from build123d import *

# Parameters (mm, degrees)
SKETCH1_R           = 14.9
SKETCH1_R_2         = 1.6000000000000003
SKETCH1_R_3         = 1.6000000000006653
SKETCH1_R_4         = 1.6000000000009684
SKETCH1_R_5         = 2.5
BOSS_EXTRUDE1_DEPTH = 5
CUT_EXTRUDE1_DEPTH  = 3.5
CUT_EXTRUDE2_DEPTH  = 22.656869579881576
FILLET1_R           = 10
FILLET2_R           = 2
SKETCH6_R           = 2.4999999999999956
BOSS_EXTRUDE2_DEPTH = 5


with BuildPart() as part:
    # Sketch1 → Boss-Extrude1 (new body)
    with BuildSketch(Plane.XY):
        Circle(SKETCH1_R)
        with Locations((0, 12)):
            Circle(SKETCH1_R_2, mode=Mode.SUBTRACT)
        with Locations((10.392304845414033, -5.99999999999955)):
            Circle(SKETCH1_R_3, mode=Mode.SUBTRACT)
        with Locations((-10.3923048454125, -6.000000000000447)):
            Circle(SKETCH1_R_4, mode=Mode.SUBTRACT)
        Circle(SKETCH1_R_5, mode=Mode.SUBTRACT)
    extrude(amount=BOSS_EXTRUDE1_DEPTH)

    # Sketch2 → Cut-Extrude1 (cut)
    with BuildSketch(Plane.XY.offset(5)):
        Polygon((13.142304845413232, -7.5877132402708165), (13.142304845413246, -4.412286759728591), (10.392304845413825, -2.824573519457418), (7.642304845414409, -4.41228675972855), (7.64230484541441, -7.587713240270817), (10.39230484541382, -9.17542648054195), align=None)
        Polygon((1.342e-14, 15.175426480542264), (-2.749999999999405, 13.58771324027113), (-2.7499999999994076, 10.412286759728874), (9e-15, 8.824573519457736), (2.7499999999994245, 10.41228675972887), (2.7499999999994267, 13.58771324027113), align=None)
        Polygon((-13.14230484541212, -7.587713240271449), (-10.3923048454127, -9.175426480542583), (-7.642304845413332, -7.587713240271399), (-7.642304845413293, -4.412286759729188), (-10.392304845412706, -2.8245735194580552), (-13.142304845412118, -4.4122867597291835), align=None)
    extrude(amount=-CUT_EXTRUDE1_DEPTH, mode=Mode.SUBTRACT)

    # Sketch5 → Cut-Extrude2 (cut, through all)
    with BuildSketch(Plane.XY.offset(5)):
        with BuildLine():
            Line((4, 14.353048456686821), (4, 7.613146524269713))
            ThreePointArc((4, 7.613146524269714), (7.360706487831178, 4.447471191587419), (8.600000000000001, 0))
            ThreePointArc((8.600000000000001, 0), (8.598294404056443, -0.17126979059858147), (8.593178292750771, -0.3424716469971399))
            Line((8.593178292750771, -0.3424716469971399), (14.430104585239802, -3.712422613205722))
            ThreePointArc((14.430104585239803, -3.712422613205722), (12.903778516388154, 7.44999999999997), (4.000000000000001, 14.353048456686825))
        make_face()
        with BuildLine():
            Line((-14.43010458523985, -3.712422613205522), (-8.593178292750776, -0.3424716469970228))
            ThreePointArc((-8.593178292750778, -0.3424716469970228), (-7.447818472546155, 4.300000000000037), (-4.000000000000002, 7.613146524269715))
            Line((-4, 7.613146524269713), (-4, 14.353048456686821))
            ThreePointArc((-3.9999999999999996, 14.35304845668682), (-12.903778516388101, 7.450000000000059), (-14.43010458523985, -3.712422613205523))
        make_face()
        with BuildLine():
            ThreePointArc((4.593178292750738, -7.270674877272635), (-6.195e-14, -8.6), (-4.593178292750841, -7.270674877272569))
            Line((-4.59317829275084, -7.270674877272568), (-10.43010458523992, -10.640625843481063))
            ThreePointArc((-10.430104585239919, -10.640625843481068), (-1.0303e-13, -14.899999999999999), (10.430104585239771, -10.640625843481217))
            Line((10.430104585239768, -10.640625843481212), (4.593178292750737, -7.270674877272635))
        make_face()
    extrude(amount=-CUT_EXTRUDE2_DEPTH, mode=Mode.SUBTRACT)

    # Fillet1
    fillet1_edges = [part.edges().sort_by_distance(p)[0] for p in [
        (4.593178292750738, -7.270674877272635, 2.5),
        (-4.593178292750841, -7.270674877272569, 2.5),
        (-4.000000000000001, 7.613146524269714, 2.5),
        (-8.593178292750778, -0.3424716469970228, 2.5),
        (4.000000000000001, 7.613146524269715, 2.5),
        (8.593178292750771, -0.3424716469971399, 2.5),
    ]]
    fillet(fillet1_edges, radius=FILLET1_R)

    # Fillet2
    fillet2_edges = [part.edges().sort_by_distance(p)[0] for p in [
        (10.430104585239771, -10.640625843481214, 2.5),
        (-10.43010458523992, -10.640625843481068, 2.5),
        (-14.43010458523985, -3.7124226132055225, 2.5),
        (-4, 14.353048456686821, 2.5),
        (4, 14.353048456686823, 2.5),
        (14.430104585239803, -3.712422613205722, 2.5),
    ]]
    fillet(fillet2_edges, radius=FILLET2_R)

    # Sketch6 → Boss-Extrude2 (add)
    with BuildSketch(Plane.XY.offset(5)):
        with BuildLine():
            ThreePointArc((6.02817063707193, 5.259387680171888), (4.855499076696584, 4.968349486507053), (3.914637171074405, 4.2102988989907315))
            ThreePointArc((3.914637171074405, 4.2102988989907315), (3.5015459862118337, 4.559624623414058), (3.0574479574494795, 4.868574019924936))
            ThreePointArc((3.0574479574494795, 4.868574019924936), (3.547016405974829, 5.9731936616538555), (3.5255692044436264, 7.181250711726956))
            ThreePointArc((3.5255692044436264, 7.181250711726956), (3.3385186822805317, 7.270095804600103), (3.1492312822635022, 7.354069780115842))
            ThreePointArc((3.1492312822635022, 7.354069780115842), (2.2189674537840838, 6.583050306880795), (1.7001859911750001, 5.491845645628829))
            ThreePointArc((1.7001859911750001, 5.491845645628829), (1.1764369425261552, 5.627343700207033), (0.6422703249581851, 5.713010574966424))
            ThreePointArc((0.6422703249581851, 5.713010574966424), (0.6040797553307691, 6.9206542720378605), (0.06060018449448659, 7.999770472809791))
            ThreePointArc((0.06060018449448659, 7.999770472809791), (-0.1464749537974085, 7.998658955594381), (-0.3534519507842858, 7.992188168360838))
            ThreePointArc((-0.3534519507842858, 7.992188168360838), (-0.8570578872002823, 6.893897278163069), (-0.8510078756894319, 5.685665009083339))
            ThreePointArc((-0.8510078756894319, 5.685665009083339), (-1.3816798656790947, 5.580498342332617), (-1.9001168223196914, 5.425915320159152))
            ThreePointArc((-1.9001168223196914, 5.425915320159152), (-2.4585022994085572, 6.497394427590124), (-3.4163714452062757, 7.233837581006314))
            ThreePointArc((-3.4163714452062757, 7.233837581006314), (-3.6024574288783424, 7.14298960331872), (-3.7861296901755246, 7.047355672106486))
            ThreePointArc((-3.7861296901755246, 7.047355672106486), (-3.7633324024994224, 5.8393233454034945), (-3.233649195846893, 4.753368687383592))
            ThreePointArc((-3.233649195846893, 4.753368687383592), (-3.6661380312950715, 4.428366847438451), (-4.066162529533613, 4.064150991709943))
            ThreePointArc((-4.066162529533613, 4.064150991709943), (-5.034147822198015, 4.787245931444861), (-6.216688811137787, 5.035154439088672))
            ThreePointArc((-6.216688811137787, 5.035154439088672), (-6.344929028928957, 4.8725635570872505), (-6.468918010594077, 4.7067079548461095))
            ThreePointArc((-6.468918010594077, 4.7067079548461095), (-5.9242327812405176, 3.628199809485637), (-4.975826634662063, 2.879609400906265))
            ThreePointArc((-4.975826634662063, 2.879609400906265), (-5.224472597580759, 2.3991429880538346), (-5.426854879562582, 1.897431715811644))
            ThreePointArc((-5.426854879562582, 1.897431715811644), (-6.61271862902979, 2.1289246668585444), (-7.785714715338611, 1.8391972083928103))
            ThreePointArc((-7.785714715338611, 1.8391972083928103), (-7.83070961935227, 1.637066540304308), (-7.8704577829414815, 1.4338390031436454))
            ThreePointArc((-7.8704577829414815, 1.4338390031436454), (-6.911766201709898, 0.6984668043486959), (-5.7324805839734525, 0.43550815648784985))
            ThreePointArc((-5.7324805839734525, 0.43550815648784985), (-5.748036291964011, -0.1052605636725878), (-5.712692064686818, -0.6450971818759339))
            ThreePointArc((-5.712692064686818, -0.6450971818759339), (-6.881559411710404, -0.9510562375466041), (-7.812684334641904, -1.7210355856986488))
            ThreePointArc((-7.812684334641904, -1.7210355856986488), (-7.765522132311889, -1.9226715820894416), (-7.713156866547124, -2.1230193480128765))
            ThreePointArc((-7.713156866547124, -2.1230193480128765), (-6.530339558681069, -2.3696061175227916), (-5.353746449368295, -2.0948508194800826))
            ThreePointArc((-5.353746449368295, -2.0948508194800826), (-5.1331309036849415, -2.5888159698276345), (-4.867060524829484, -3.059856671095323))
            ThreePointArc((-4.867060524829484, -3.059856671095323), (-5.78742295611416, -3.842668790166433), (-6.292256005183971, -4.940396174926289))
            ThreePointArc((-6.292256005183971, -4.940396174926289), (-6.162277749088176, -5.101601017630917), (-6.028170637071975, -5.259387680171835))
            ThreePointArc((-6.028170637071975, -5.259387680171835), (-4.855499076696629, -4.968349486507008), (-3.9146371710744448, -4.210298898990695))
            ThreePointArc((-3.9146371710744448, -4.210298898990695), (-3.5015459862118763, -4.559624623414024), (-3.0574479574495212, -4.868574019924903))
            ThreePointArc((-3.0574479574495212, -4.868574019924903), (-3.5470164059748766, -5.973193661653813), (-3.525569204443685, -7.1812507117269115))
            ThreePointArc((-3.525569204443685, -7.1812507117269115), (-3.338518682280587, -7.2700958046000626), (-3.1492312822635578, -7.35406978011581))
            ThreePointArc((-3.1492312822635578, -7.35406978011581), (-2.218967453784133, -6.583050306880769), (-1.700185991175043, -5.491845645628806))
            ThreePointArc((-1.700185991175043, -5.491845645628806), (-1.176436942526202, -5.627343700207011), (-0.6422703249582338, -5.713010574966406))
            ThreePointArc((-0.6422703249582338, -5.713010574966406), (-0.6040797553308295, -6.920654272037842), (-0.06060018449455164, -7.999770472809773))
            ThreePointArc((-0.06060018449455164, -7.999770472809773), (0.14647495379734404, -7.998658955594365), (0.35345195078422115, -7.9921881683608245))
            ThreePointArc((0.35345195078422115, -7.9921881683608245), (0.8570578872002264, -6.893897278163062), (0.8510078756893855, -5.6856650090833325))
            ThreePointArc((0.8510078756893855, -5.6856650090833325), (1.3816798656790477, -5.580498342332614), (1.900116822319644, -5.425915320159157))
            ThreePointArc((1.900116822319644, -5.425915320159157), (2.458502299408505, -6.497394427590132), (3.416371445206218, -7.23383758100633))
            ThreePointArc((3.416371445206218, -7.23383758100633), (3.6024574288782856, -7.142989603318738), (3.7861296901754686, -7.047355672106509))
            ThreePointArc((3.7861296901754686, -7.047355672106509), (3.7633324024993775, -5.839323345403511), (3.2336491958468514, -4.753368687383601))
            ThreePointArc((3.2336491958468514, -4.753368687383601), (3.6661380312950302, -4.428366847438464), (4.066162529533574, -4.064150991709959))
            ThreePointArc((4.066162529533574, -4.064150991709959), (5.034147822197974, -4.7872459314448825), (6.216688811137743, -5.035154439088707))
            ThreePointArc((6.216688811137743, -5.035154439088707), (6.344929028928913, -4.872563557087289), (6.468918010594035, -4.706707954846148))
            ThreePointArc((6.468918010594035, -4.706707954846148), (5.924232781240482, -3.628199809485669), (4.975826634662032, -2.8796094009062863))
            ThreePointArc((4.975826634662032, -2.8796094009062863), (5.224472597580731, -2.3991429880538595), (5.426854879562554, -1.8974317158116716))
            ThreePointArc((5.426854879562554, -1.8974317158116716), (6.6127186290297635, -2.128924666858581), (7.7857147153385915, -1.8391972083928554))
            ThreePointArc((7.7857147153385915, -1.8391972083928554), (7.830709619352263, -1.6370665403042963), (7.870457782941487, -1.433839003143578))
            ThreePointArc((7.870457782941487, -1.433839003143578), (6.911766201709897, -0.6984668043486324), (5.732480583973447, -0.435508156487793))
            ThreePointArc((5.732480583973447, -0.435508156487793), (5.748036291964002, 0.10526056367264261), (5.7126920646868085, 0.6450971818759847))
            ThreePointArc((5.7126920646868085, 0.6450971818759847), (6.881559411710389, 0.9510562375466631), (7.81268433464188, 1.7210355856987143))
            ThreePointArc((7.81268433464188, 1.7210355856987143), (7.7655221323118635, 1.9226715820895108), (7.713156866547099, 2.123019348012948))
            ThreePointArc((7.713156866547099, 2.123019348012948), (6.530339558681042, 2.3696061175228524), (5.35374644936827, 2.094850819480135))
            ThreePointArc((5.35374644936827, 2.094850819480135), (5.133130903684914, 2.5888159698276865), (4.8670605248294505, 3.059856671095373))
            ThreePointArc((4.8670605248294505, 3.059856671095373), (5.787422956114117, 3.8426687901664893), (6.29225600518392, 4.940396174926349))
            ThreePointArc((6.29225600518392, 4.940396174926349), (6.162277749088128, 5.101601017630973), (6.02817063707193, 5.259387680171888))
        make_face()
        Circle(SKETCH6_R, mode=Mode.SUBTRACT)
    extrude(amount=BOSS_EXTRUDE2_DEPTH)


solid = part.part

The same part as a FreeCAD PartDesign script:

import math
import FreeCAD as App
import Part
import Sketcher

V = App.Vector
Q = App.Units.Quantity


def edges_at(feature, points):
    """Names of the edges that pass closest to the given points."""
    edges = feature.Shape.Edges
    near = lambda p: min(range(len(edges)), key=lambda i: edges[i].distToShape(Part.Vertex(*p))[0])
    return sorted({f"Edge{near(p) + 1}" for p in points})

doc = App.newDocument("Part")
body = doc.addObject("PartDesign::Body", "Body")

# Sketch on XY plane
sketch1 = body.newObject("Sketcher::SketchObject", "Sketch")
sketch1.AttachmentSupport = (doc.getObject("XY_Plane"), [""])
sketch1.MapMode = "FlatFace"
sketch1.addGeometry(Part.Circle(V(0, 0, 0), V(0, 0, 1), 14.9), False)
sketch1.addGeometry(Part.Circle(V(-10.4, -6, 0), V(0, 0, 1), 1.6), False)
sketch1.addGeometry(Part.Circle(V(0, 0, 0), V(0, 0, 1), 2.5), False)
sketch1.addGeometry(Part.Circle(V(10.4, -6, 0), V(0, 0, 1), 1.6), False)
sketch1.addGeometry(Part.Circle(V(0, 12, 0), V(0, 0, 1), 1.6), False)
sketch1.addConstraint(Sketcher.Constraint("Coincident", 0, 3, -1, 1))
sketch1.addConstraint(Sketcher.Constraint("Coincident", 2, 3, -1, 1))
sketch1.addConstraint(Sketcher.Constraint("Equal", 1, 3))
sketch1.addConstraint(Sketcher.Constraint("Equal", 3, 4))
sketch1.addConstraint(Sketcher.Constraint("Symmetric", 1, 3, 3, 3, -2))
sketch1.addConstraint(Sketcher.Constraint("PointOnObject", 4, 3, -2))
sketch1.addConstraint(Sketcher.Constraint("Diameter", 2, Q("5 mm")))
sketch1.addConstraint(Sketcher.Constraint("Diameter", 0, Q("29.8 mm")))
sketch1.addConstraint(Sketcher.Constraint("Diameter", 1, Q("3.2 mm")))
sketch1.addConstraint(Sketcher.Constraint("DistanceY", 1, 3, -1, 1, Q("6 mm")))
sketch1.addConstraint(Sketcher.Constraint("DistanceY", -1, 1, 4, 3, Q("12 mm")))
sketch1.addConstraint(Sketcher.Constraint("DistanceX", 1, 3, 3, 3, Q("20.78461 mm")))
pad1 = body.newObject("PartDesign::Pad", "Pad")
pad1.Profile = sketch1
pad1.Length = 5

# Sketch on XY plane
sketch2 = body.newObject("Sketcher::SketchObject", "Sketch001")
sketch2.AttachmentSupport = (doc.getObject("XY_Plane"), [""])
sketch2.MapMode = "FlatFace"
sketch2.AttachmentOffset = App.Placement(V(0, 0, 5), App.Rotation())
sketch2.addGeometry(Part.LineSegment(V(13.1, -7.6, 0), V(13.1, -4.4, 0)), False)
sketch2.addGeometry(Part.LineSegment(V(13.1, -4.4, 0), V(10.4, -2.8, 0)), False)
sketch2.addGeometry(Part.LineSegment(V(10.4, -2.8, 0), V(7.6, -4.4, 0)), False)
sketch2.addGeometry(Part.LineSegment(V(7.6, -4.4, 0), V(7.6, -7.6, 0)), False)
sketch2.addGeometry(Part.LineSegment(V(7.6, -7.6, 0), V(10.4, -9.2, 0)), False)
sketch2.addGeometry(Part.LineSegment(V(10.4, -9.2, 0), V(13.1, -7.6, 0)), False)
sketch2.addGeometry(Part.LineSegment(V(0, 15.2, 0), V(-2.8, 13.6, 0)), False)
sketch2.addGeometry(Part.LineSegment(V(-2.8, 13.6, 0), V(-2.8, 10.4, 0)), False)
sketch2.addGeometry(Part.LineSegment(V(-2.8, 10.4, 0), V(0, 8.8, 0)), False)
sketch2.addGeometry(Part.LineSegment(V(0, 8.8, 0), V(2.8, 10.4, 0)), False)
sketch2.addGeometry(Part.LineSegment(V(2.8, 10.4, 0), V(2.8, 13.6, 0)), False)
sketch2.addGeometry(Part.LineSegment(V(2.8, 13.6, 0), V(0, 15.2, 0)), False)
sketch2.addGeometry(Part.LineSegment(V(-13.1, -7.6, 0), V(-10.4, -9.2, 0)), False)
sketch2.addGeometry(Part.LineSegment(V(-10.4, -9.2, 0), V(-7.6, -7.6, 0)), False)
sketch2.addGeometry(Part.LineSegment(V(-7.6, -7.6, 0), V(-7.6, -4.4, 0)), False)
sketch2.addGeometry(Part.LineSegment(V(-7.6, -4.4, 0), V(-10.4, -2.8, 0)), False)
sketch2.addGeometry(Part.LineSegment(V(-10.4, -2.8, 0), V(-13.1, -4.4, 0)), False)
sketch2.addGeometry(Part.LineSegment(V(-13.1, -4.4, 0), V(-13.1, -7.6, 0)), False)
sketch2.addConstraint(Sketcher.Constraint("Coincident", 0, 2, 1, 1))
sketch2.addConstraint(Sketcher.Constraint("Coincident", 1, 2, 2, 1))
sketch2.addConstraint(Sketcher.Constraint("Coincident", 2, 2, 3, 1))
sketch2.addConstraint(Sketcher.Constraint("Coincident", 3, 2, 4, 1))
sketch2.addConstraint(Sketcher.Constraint("Coincident", 4, 2, 5, 1))
sketch2.addConstraint(Sketcher.Constraint("Coincident", 5, 2, 0, 1))
sketch2.addConstraint(Sketcher.Constraint("Coincident", 6, 2, 7, 1))
sketch2.addConstraint(Sketcher.Constraint("Coincident", 7, 2, 8, 1))
sketch2.addConstraint(Sketcher.Constraint("Coincident", 8, 2, 9, 1))
sketch2.addConstraint(Sketcher.Constraint("Coincident", 9, 2, 10, 1))
sketch2.addConstraint(Sketcher.Constraint("Coincident", 10, 2, 11, 1))
sketch2.addConstraint(Sketcher.Constraint("Coincident", 11, 2, 6, 1))
sketch2.addConstraint(Sketcher.Constraint("Coincident", 12, 2, 13, 1))
sketch2.addConstraint(Sketcher.Constraint("Coincident", 13, 2, 14, 1))
sketch2.addConstraint(Sketcher.Constraint("Coincident", 14, 2, 15, 1))
sketch2.addConstraint(Sketcher.Constraint("Coincident", 15, 2, 16, 1))
sketch2.addConstraint(Sketcher.Constraint("Coincident", 16, 2, 17, 1))
sketch2.addConstraint(Sketcher.Constraint("Coincident", 17, 2, 12, 1))
sketch2.addConstraint(Sketcher.Constraint("Vertical", 0))
sketch2.addConstraint(Sketcher.Constraint("Vertical", 3))
sketch2.addConstraint(Sketcher.Constraint("Vertical", 7))
sketch2.addConstraint(Sketcher.Constraint("Vertical", 10))
sketch2.addConstraint(Sketcher.Constraint("Vertical", 14))
sketch2.addConstraint(Sketcher.Constraint("Vertical", 17))
sketch2.addConstraint(Sketcher.Constraint("Symmetric", 7, 2, 9, 2, -2))
sketch2.addConstraint(Sketcher.Constraint("Symmetric", 4, 2, 12, 2, -2))
sketch2.addConstraint(Sketcher.Constraint("Symmetric", 3, 2, 13, 2, -2))
sketch2.addConstraint(Sketcher.Constraint("Symmetric", 1, 2, 15, 2, -2))
sketch2.addConstraint(Sketcher.Constraint("Symmetric", 0, 2, 16, 2, -2))
sketch2.addConstraint(Sketcher.Constraint("PointOnObject", 8, 2, -2))
sketch2.addConstraint(Sketcher.Constraint("PointOnObject", 11, 2, -2))
sketch2.addConstraint(Sketcher.Constraint("Parallel", 1, 4))
sketch2.addConstraint(Sketcher.Constraint("Parallel", 2, 5))
sketch2.addConstraint(Sketcher.Constraint("Parallel", 5, 6))
sketch2.addConstraint(Sketcher.Constraint("Parallel", 4, 8))
sketch2.addConstraint(Sketcher.Constraint("Parallel", 6, 9))
sketch2.addConstraint(Sketcher.Constraint("Parallel", 8, 11))
sketch2.addConstraint(Sketcher.Constraint("Parallel", 11, 12))
sketch2.addConstraint(Sketcher.Constraint("Parallel", 12, 15))
sketch2.addConstraint(Sketcher.Constraint("Horizontal", 0, 2, 2, 2))
sketch2.addConstraint(Sketcher.Constraint("Horizontal", 3, 2, 5, 2))
sketch2.addConstraint(Sketcher.Constraint("Equal", 3, 7))
sketch2.addConstraint(Sketcher.Constraint("Equal", 5, 6))
sketch2.addConstraint(Sketcher.Constraint("Angle", 1, Q("150 deg")))
sketch2.addConstraint(Sketcher.Constraint("DistanceY", 2, 2, 6, 2, Q("18 mm")))
sketch2.addConstraint(Sketcher.Constraint("DistanceX", 2, 2, 0, 2, Q("5.5 mm")))
sketch2.addConstraint(Sketcher.Constraint("DistanceY", 0, 1, 0, 2, Q("3.175426 mm")))
sketch2.addConstraint(Sketcher.Constraint("DistanceX", 12, 2, 3, 2, Q("18.03461 mm")))
sketch2.addConstraint(Sketcher.Constraint("DistanceY", 0, 2, -1, 1, Q("4.412287 mm")))
pocket1 = body.newObject("PartDesign::Pocket", "Pocket")
pocket1.Profile = sketch2
pocket1.Length = 3.5

# Sketch on XY plane
sketch3 = body.newObject("Sketcher::SketchObject", "Sketch002")
sketch3.AttachmentSupport = (doc.getObject("XY_Plane"), [""])
sketch3.MapMode = "FlatFace"
sketch3.AttachmentOffset = App.Placement(V(0, 0, 5), App.Rotation())
sketch3.addGeometry(Part.LineSegment(V(4, 14, 0), V(4, 8, 0)), False)
sketch3.addGeometry(Part.ArcOfCircle(Part.Circle(V(0, 0, 0), V(0, 0, 1), 9), math.radians(-2), math.radians(62)), False)
sketch3.addGeometry(Part.LineSegment(V(9, 0, 0), V(14, -4, 0)), False)
sketch3.addGeometry(Part.ArcOfCircle(Part.Circle(V(0, 0, 0), V(0, 0, 1), 15), math.radians(-14), math.radians(74)), False)
sketch3.addGeometry(Part.LineSegment(V(-14, -4, 0), V(-9, 0, 0)), False)
sketch3.addGeometry(Part.ArcOfCircle(Part.Circle(V(0, 0, 0), V(0, 0, 1), 9), math.radians(118), math.radians(182)), False)
sketch3.addGeometry(Part.LineSegment(V(-4, 8, 0), V(-4, 14, 0)), False)
sketch3.addGeometry(Part.ArcOfCircle(Part.Circle(V(0, 0, 0), V(0, 0, 1), 15), math.radians(106), math.radians(194)), False)
sketch3.addGeometry(Part.ArcOfCircle(Part.Circle(V(0, 0, 0), V(0, 0, 1), 9), math.radians(-122), math.radians(-58)), False)
sketch3.addGeometry(Part.LineSegment(V(-5, -7, 0), V(-10, -11, 0)), False)
sketch3.addGeometry(Part.ArcOfCircle(Part.Circle(V(0, 0, 0), V(0, 0, 1), 15), math.radians(-134), math.radians(-46)), False)
sketch3.addGeometry(Part.LineSegment(V(10, -11, 0), V(5, -7, 0)), False)
sketch3.addConstraint(Sketcher.Constraint("Coincident", 0, 2, 1, 2))
sketch3.addConstraint(Sketcher.Constraint("Coincident", 1, 1, 2, 1))
sketch3.addConstraint(Sketcher.Constraint("Coincident", 2, 2, 3, 1))
sketch3.addConstraint(Sketcher.Constraint("Coincident", 3, 2, 0, 1))
sketch3.addConstraint(Sketcher.Constraint("Coincident", 4, 2, 5, 2))
sketch3.addConstraint(Sketcher.Constraint("Coincident", 5, 1, 6, 1))
sketch3.addConstraint(Sketcher.Constraint("Coincident", 6, 2, 7, 1))
sketch3.addConstraint(Sketcher.Constraint("Coincident", 7, 2, 4, 1))
sketch3.addConstraint(Sketcher.Constraint("Coincident", 8, 1, 9, 1))
sketch3.addConstraint(Sketcher.Constraint("Coincident", 9, 2, 10, 1))
sketch3.addConstraint(Sketcher.Constraint("Coincident", 10, 2, 11, 1))
sketch3.addConstraint(Sketcher.Constraint("Coincident", 11, 2, 8, 2))
sketch3.addConstraint(Sketcher.Constraint("Vertical", 0))
sketch3.addConstraint(Sketcher.Constraint("Vertical", 6))
sketch3.addConstraint(Sketcher.Constraint("Coincident", 1, 3, -1, 1))
sketch3.addConstraint(Sketcher.Constraint("Coincident", 3, 3, -1, 1))
sketch3.addConstraint(Sketcher.Constraint("Coincident", 5, 3, -1, 1))
sketch3.addConstraint(Sketcher.Constraint("Coincident", 7, 3, -1, 1))
sketch3.addConstraint(Sketcher.Constraint("Coincident", 8, 3, -1, 1))
sketch3.addConstraint(Sketcher.Constraint("Coincident", 10, 3, -1, 1))
sketch3.addConstraint(Sketcher.Constraint("Equal", 1, 5))
sketch3.addConstraint(Sketcher.Constraint("Equal", 3, 7))
sketch3.addConstraint(Sketcher.Constraint("Equal", 5, 8))
sketch3.addConstraint(Sketcher.Constraint("Equal", 7, 10))
sketch3.addConstraint(Sketcher.Constraint("Parallel", 4, 9))
sketch3.addConstraint(Sketcher.Constraint("Parallel", 2, 11))
sketch3.addConstraint(Sketcher.Constraint("Horizontal", 1, 1, 4, 2))
sketch3.addConstraint(Sketcher.Constraint("Horizontal", 0, 2, 5, 1))
sketch3.addConstraint(Sketcher.Constraint("Horizontal", 2, 2, 7, 2))
sketch3.addConstraint(Sketcher.Constraint("Horizontal", 9, 2, 10, 2))
sketch3.addConstraint(Sketcher.Constraint("Equal", 4, 9))
sketch3.addConstraint(Sketcher.Constraint("Radius", 1, Q("8.6 mm")))
sketch3.addConstraint(Sketcher.Constraint("Radius", 3, Q("14.9 mm")))
sketch3.addConstraint(Sketcher.Constraint("Angle", 2, Q("-30 deg")))
sketch3.addConstraint(Sketcher.Constraint("DistanceX", -1, 1, 0, 2, Q("4 mm")))
sketch3.addConstraint(Sketcher.Constraint("DistanceX", 4, 2, 8, 1, Q("4 mm")))
pocket2 = body.newObject("PartDesign::Pocket", "Pocket001")
pocket2.Profile = sketch3
pocket2.Type = "ThroughAll"
doc.recompute()

fillet = body.newObject("PartDesign::Fillet", "Fillet")
fillet.Base = (pocket2, edges_at(pocket2, [
    (4.593, -7.271, 2.5),
    (-4.593, -7.271, 2.5),
    (-4, 7.613, 2.5),
    (-8.593, -0.342, 2.5),
    (4, 7.613, 2.5),
    (8.593, -0.342, 2.5),
]))
fillet.Radius = 10
doc.recompute()

fillet2 = body.newObject("PartDesign::Fillet", "Fillet001")
fillet2.Base = (fillet, edges_at(fillet, [
    (10.43, -10.641, 2.5),
    (-10.43, -10.641, 2.5),
    (-14.43, -3.712, 2.5),
    (-4, 14.353, 2.5),
    (4, 14.353, 2.5),
    (14.43, -3.712, 2.5),
]))
fillet2.Radius = 2

# Sketch on XY plane
sketch4 = body.newObject("Sketcher::SketchObject", "Sketch003")
sketch4.AttachmentSupport = (doc.getObject("XY_Plane"), [""])
sketch4.MapMode = "FlatFace"
sketch4.AttachmentOffset = App.Placement(V(0, 0, 5), App.Rotation())
sketch4.addGeometry(Part.ArcOfCircle(Part.Circle(V(6.1, 2.46, 0), V(0, 0, 1), 2.8), math.radians(91), math.radians(141)), False)
sketch4.addGeometry(Part.ArcOfCircle(Part.Circle(V(0, 0, 0), V(0, 0, 1), 5.75), math.radians(47.08), math.radians(57.87)), False)
sketch4.addGeometry(Part.ArcOfCircle(Part.Circle(V(0.8, 6.53, 0), V(0, 0, 1), 2.8), math.radians(-36), math.radians(13)), False)
sketch4.addGeometry(Part.ArcOfCircle(Part.Circle(V(0, 0, 0), V(0, 0, 1), 8), math.radians(63.85), math.radians(66.82)), False)
sketch4.addGeometry(Part.ArcOfCircle(Part.Circle(V(4.43, 4.86, 0), V(0, 0, 1), 2.8), math.radians(117), math.radians(167)), False)
sketch4.addGeometry(Part.ArcOfCircle(Part.Circle(V(0, 0, 0), V(0, 0, 1), 5.75), math.radians(72.8), math.radians(83.59)), False)
sketch4.addGeometry(Part.ArcOfCircle(Part.Circle(V(-2.11, 6.23, 0), V(0, 0, 1), 2.8), math.radians(-11), math.radians(39)), False)
sketch4.addGeometry(Part.ArcOfCircle(Part.Circle(V(0, 0, 0), V(0, 0, 1), 8), math.radians(89.57), math.radians(92.53)), False)
sketch4.addGeometry(Part.ArcOfCircle(Part.Circle(V(1.88, 6.3, 0), V(0, 0, 1), 2.8), math.radians(143), math.radians(193)), False)
sketch4.addGeometry(Part.ArcOfCircle(Part.Circle(V(0, 0, 0), V(0, 0, 1), 5.75), math.radians(98.51), math.radians(109.3)), False)
sketch4.addGeometry(Part.ArcOfCircle(Part.Circle(V(-4.6, 4.7, 0), V(0, 0, 1), 2.8), math.radians(15), math.radians(65)), False)
sketch4.addGeometry(Part.ArcOfCircle(Part.Circle(V(0, 0, 0), V(0, 0, 1), 8), math.radians(115.28), math.radians(118.25)), False)
sketch4.addGeometry(Part.ArcOfCircle(Part.Circle(V(-1.04, 6.49, 0), V(0, 0, 1), 2.8), math.radians(169), math.radians(218)), False)
sketch4.addGeometry(Part.ArcOfCircle(Part.Circle(V(0, 0, 0), V(0, 0, 1), 5.75), math.radians(124.23), math.radians(135.01)), False)
sketch4.addGeometry(Part.ArcOfCircle(Part.Circle(V(-6.19, 2.24, 0), V(0, 0, 1), 2.8), math.radians(41), math.radians(91)), False)
sketch4.addGeometry(Part.ArcOfCircle(Part.Circle(V(0, 0, 0), V(0, 0, 1), 8), math.radians(140.99), math.radians(143.96)), False)
sketch4.addGeometry(Part.ArcOfCircle(Part.Circle(V(-3.76, 5.4, 0), V(0, 0, 1), 2.8), math.radians(-166), math.radians(-116)), False)
sketch4.addGeometry(Part.ArcOfCircle(Part.Circle(V(0, 0, 0), V(0, 0, 1), 5.75), math.radians(149.94), math.radians(160.73)), False)
sketch4.addGeometry(Part.ArcOfCircle(Part.Circle(V(-6.54, -0.67, 0), V(0, 0, 1), 2.8), math.radians(66), math.radians(116)), False)
sketch4.addGeometry(Part.ArcOfCircle(Part.Circle(V(0, 0, 0), V(0, 0, 1), 8), math.radians(166.71), math.radians(169.68)), False)
sketch4.addGeometry(Part.ArcOfCircle(Part.Circle(V(-5.73, 3.24, 0), V(0, 0, 1), 2.8), math.radians(-140), math.radians(-90)), False)
sketch4.addGeometry(Part.ArcOfCircle(Part.Circle(V(0, 0, 0), V(0, 0, 1), 5.75), math.radians(175.66), math.radians(186.44)), False)
sketch4.addGeometry(Part.ArcOfCircle(Part.Circle(V(-5.6, -3.44, 0), V(0, 0, 1), 2.8), math.radians(92), math.radians(142)), False)
sketch4.addGeometry(Part.ArcOfCircle(Part.Circle(V(0, 0, 0), V(0, 0, 1), 8), math.radians(-167.58), math.radians(-164.61)), False)
sketch4.addGeometry(Part.ArcOfCircle(Part.Circle(V(-6.56, 0.43, 0), V(0, 0, 1), 2.8), math.radians(-114), math.radians(-64)), False)
sketch4.addGeometry(Part.ArcOfCircle(Part.Circle(V(0, 0, 0), V(0, 0, 1), 5.75), math.radians(-158.63), math.radians(-147.84)), False)
sketch4.addGeometry(Part.ArcOfCircle(Part.Circle(V(-3.56, -5.53, 0), V(0, 0, 1), 2.8), math.radians(118), math.radians(168)), False)
sketch4.addGeometry(Part.ArcOfCircle(Part.Circle(V(0, 0, 0), V(0, 0, 1), 8), math.radians(-141.86), math.radians(-138.9)), False)
sketch4.addGeometry(Part.ArcOfCircle(Part.Circle(V(-6.1, -2.46, 0), V(0, 0, 1), 2.8), math.radians(-89), math.radians(-39)), False)
sketch4.addGeometry(Part.ArcOfCircle(Part.Circle(V(0, 0, 0), V(0, 0, 1), 5.75), math.radians(-132.92), math.radians(-122.13)), False)
sketch4.addGeometry(Part.ArcOfCircle(Part.Circle(V(-0.8, -6.53, 0), V(0, 0, 1), 2.8), math.radians(144), math.radians(193)), False)
sketch4.addGeometry(Part.ArcOfCircle(Part.Circle(V(0, 0, 0), V(0, 0, 1), 8), math.radians(-116.15), math.radians(-113.18)), False)
sketch4.addGeometry(Part.ArcOfCircle(Part.Circle(V(-4.43, -4.86, 0), V(0, 0, 1), 2.8), math.radians(-63), math.radians(-13)), False)
sketch4.addGeometry(Part.ArcOfCircle(Part.Circle(V(0, 0, 0), V(0, 0, 1), 5.75), math.radians(-107.2), math.radians(-96.41)), False)
sketch4.addGeometry(Part.ArcOfCircle(Part.Circle(V(2.11, -6.23, 0), V(0, 0, 1), 2.8), math.radians(169), math.radians(219)), False)
sketch4.addGeometry(Part.ArcOfCircle(Part.Circle(V(0, 0, 0), V(0, 0, 1), 8), math.radians(-90.43), math.radians(-87.47)), False)
sketch4.addGeometry(Part.ArcOfCircle(Part.Circle(V(-1.88, -6.3, 0), V(0, 0, 1), 2.8), math.radians(-37), math.radians(13)), False)
sketch4.addGeometry(Part.ArcOfCircle(Part.Circle(V(0, 0, 0), V(0, 0, 1), 5.75), math.radians(-81.49), math.radians(-70.7)), False)
sketch4.addGeometry(Part.ArcOfCircle(Part.Circle(V(4.6, -4.7, 0), V(0, 0, 1), 2.8), math.radians(-165), math.radians(-115)), False)
sketch4.addGeometry(Part.ArcOfCircle(Part.Circle(V(0, 0, 0), V(0, 0, 1), 8), math.radians(-64.72), math.radians(-61.75)), False)
sketch4.addGeometry(Part.ArcOfCircle(Part.Circle(V(1.04, -6.49, 0), V(0, 0, 1), 2.8), math.radians(-11), math.radians(38)), False)
sketch4.addGeometry(Part.ArcOfCircle(Part.Circle(V(0, 0, 0), V(0, 0, 1), 5.75), math.radians(-55.77), math.radians(-44.99)), False)
sketch4.addGeometry(Part.ArcOfCircle(Part.Circle(V(6.19, -2.24, 0), V(0, 0, 1), 2.8), math.radians(-139), math.radians(-89)), False)
sketch4.addGeometry(Part.ArcOfCircle(Part.Circle(V(0, 0, 0), V(0, 0, 1), 8), math.radians(-39.01), math.radians(-36.04)), False)
sketch4.addGeometry(Part.ArcOfCircle(Part.Circle(V(3.76, -5.4, 0), V(0, 0, 1), 2.8), math.radians(14), math.radians(64)), False)
sketch4.addGeometry(Part.ArcOfCircle(Part.Circle(V(0, 0, 0), V(0, 0, 1), 5.75), math.radians(-30.06), math.radians(-19.27)), False)
sketch4.addGeometry(Part.ArcOfCircle(Part.Circle(V(6.54, 0.67, 0), V(0, 0, 1), 2.8), math.radians(-114), math.radians(-64)), False)
sketch4.addGeometry(Part.ArcOfCircle(Part.Circle(V(0, 0, 0), V(0, 0, 1), 8), math.radians(-13.29), math.radians(-10.32)), False)
sketch4.addGeometry(Part.ArcOfCircle(Part.Circle(V(5.73, -3.24, 0), V(0, 0, 1), 2.8), math.radians(40), math.radians(90)), False)
sketch4.addGeometry(Part.ArcOfCircle(Part.Circle(V(0, 0, 0), V(0, 0, 1), 5.75), math.radians(-4.34), math.radians(6.44)), False)
sketch4.addGeometry(Part.ArcOfCircle(Part.Circle(V(5.6, 3.44, 0), V(0, 0, 1), 2.8), math.radians(-88), math.radians(-38)), False)
sketch4.addGeometry(Part.ArcOfCircle(Part.Circle(V(0, 0, 0), V(0, 0, 1), 8), math.radians(12.42), math.radians(15.39)), False)
sketch4.addGeometry(Part.ArcOfCircle(Part.Circle(V(6.56, -0.43, 0), V(0, 0, 1), 2.8), math.radians(66), math.radians(116)), False)
sketch4.addGeometry(Part.ArcOfCircle(Part.Circle(V(0, 0, 0), V(0, 0, 1), 5.75), math.radians(21.37), math.radians(32.16)), False)
sketch4.addGeometry(Part.ArcOfCircle(Part.Circle(V(3.56, 5.53, 0), V(0, 0, 1), 2.8), math.radians(-62), math.radians(-12)), False)
sketch4.addGeometry(Part.ArcOfCircle(Part.Circle(V(0, 0, 0), V(0, 0, 1), 8), math.radians(38.14), math.radians(41.1)), False)
sketch4.addGeometry(Part.Circle(V(0, 0, 0), V(0, 0, 1), 2.5), False)
sketch4.addConstraint(Sketcher.Constraint("Coincident", 0, 2, 1, 1))
sketch4.addConstraint(Sketcher.Constraint("Coincident", 1, 2, 2, 1))
sketch4.addConstraint(Sketcher.Constraint("Coincident", 2, 2, 3, 1))
sketch4.addConstraint(Sketcher.Constraint("Coincident", 3, 2, 4, 1))
sketch4.addConstraint(Sketcher.Constraint("Coincident", 4, 2, 5, 1))
sketch4.addConstraint(Sketcher.Constraint("Coincident", 5, 2, 6, 1))
sketch4.addConstraint(Sketcher.Constraint("Coincident", 6, 2, 7, 1))
sketch4.addConstraint(Sketcher.Constraint("Coincident", 7, 2, 8, 1))
sketch4.addConstraint(Sketcher.Constraint("Coincident", 8, 2, 9, 1))
sketch4.addConstraint(Sketcher.Constraint("Coincident", 9, 2, 10, 1))
sketch4.addConstraint(Sketcher.Constraint("Coincident", 10, 2, 11, 1))
sketch4.addConstraint(Sketcher.Constraint("Coincident", 11, 2, 12, 1))
sketch4.addConstraint(Sketcher.Constraint("Coincident", 12, 2, 13, 1))
sketch4.addConstraint(Sketcher.Constraint("Coincident", 13, 2, 14, 1))
sketch4.addConstraint(Sketcher.Constraint("Coincident", 14, 2, 15, 1))
sketch4.addConstraint(Sketcher.Constraint("Coincident", 15, 2, 16, 1))
sketch4.addConstraint(Sketcher.Constraint("Coincident", 16, 2, 17, 1))
sketch4.addConstraint(Sketcher.Constraint("Coincident", 17, 2, 18, 1))
sketch4.addConstraint(Sketcher.Constraint("Coincident", 18, 2, 19, 1))
sketch4.addConstraint(Sketcher.Constraint("Coincident", 19, 2, 20, 1))
sketch4.addConstraint(Sketcher.Constraint("Coincident", 20, 2, 21, 1))
sketch4.addConstraint(Sketcher.Constraint("Coincident", 21, 2, 22, 1))
sketch4.addConstraint(Sketcher.Constraint("Coincident", 22, 2, 23, 1))
sketch4.addConstraint(Sketcher.Constraint("Coincident", 23, 2, 24, 1))
sketch4.addConstraint(Sketcher.Constraint("Coincident", 24, 2, 25, 1))
sketch4.addConstraint(Sketcher.Constraint("Coincident", 25, 2, 26, 1))
sketch4.addConstraint(Sketcher.Constraint("Coincident", 26, 2, 27, 1))
sketch4.addConstraint(Sketcher.Constraint("Coincident", 27, 2, 28, 1))
sketch4.addConstraint(Sketcher.Constraint("Coincident", 28, 2, 29, 1))
sketch4.addConstraint(Sketcher.Constraint("Coincident", 29, 2, 30, 1))
sketch4.addConstraint(Sketcher.Constraint("Coincident", 30, 2, 31, 1))
sketch4.addConstraint(Sketcher.Constraint("Coincident", 31, 2, 32, 1))
sketch4.addConstraint(Sketcher.Constraint("Coincident", 32, 2, 33, 1))
sketch4.addConstraint(Sketcher.Constraint("Coincident", 33, 2, 34, 1))
sketch4.addConstraint(Sketcher.Constraint("Coincident", 34, 2, 35, 1))
sketch4.addConstraint(Sketcher.Constraint("Coincident", 35, 2, 36, 1))
sketch4.addConstraint(Sketcher.Constraint("Coincident", 36, 2, 37, 1))
sketch4.addConstraint(Sketcher.Constraint("Coincident", 37, 2, 38, 1))
sketch4.addConstraint(Sketcher.Constraint("Coincident", 38, 2, 39, 1))
sketch4.addConstraint(Sketcher.Constraint("Coincident", 39, 2, 40, 1))
sketch4.addConstraint(Sketcher.Constraint("Coincident", 40, 2, 41, 1))
sketch4.addConstraint(Sketcher.Constraint("Coincident", 41, 2, 42, 1))
sketch4.addConstraint(Sketcher.Constraint("Coincident", 42, 2, 43, 1))
sketch4.addConstraint(Sketcher.Constraint("Coincident", 43, 2, 44, 1))
sketch4.addConstraint(Sketcher.Constraint("Coincident", 44, 2, 45, 1))
sketch4.addConstraint(Sketcher.Constraint("Coincident", 45, 2, 46, 1))
sketch4.addConstraint(Sketcher.Constraint("Coincident", 46, 2, 47, 1))
sketch4.addConstraint(Sketcher.Constraint("Coincident", 47, 2, 48, 1))
sketch4.addConstraint(Sketcher.Constraint("Coincident", 48, 2, 49, 1))
sketch4.addConstraint(Sketcher.Constraint("Coincident", 49, 2, 50, 1))
sketch4.addConstraint(Sketcher.Constraint("Coincident", 50, 2, 51, 1))
sketch4.addConstraint(Sketcher.Constraint("Coincident", 51, 2, 52, 1))
sketch4.addConstraint(Sketcher.Constraint("Coincident", 52, 2, 53, 1))
sketch4.addConstraint(Sketcher.Constraint("Coincident", 53, 2, 54, 1))
sketch4.addConstraint(Sketcher.Constraint("Coincident", 54, 2, 55, 1))
sketch4.addConstraint(Sketcher.Constraint("Coincident", 55, 2, 0, 1))
sketch4.addConstraint(Sketcher.Constraint("Coincident", 1, 3, -1, 1))
sketch4.addConstraint(Sketcher.Constraint("Coincident", 3, 3, -1, 1))
sketch4.addConstraint(Sketcher.Constraint("Coincident", 5, 3, -1, 1))
sketch4.addConstraint(Sketcher.Constraint("Coincident", 7, 3, -1, 1))
sketch4.addConstraint(Sketcher.Constraint("Coincident", 9, 3, -1, 1))
sketch4.addConstraint(Sketcher.Constraint("Coincident", 11, 3, -1, 1))
sketch4.addConstraint(Sketcher.Constraint("Coincident", 13, 3, -1, 1))
sketch4.addConstraint(Sketcher.Constraint("Coincident", 15, 3, -1, 1))
sketch4.addConstraint(Sketcher.Constraint("Coincident", 17, 3, -1, 1))
sketch4.addConstraint(Sketcher.Constraint("Coincident", 19, 3, -1, 1))
sketch4.addConstraint(Sketcher.Constraint("Coincident", 21, 3, -1, 1))
sketch4.addConstraint(Sketcher.Constraint("Coincident", 23, 3, -1, 1))
sketch4.addConstraint(Sketcher.Constraint("Coincident", 25, 3, -1, 1))
sketch4.addConstraint(Sketcher.Constraint("Coincident", 27, 3, -1, 1))
sketch4.addConstraint(Sketcher.Constraint("Coincident", 29, 3, -1, 1))
sketch4.addConstraint(Sketcher.Constraint("Coincident", 31, 3, -1, 1))
sketch4.addConstraint(Sketcher.Constraint("Coincident", 33, 3, -1, 1))
sketch4.addConstraint(Sketcher.Constraint("Coincident", 35, 3, -1, 1))
sketch4.addConstraint(Sketcher.Constraint("Coincident", 37, 3, -1, 1))
sketch4.addConstraint(Sketcher.Constraint("Coincident", 39, 3, -1, 1))
sketch4.addConstraint(Sketcher.Constraint("Coincident", 41, 3, -1, 1))
sketch4.addConstraint(Sketcher.Constraint("Coincident", 43, 3, -1, 1))
sketch4.addConstraint(Sketcher.Constraint("Coincident", 45, 3, -1, 1))
sketch4.addConstraint(Sketcher.Constraint("Coincident", 47, 3, -1, 1))
sketch4.addConstraint(Sketcher.Constraint("Coincident", 49, 3, -1, 1))
sketch4.addConstraint(Sketcher.Constraint("Coincident", 51, 3, -1, 1))
sketch4.addConstraint(Sketcher.Constraint("Coincident", 53, 3, -1, 1))
sketch4.addConstraint(Sketcher.Constraint("Coincident", 55, 3, -1, 1))
sketch4.addConstraint(Sketcher.Constraint("Coincident", 56, 3, -1, 1))
sketch4.addConstraint(Sketcher.Constraint("Equal", 0, 2))
sketch4.addConstraint(Sketcher.Constraint("Equal", 2, 4))
sketch4.addConstraint(Sketcher.Constraint("Equal", 1, 5))
sketch4.addConstraint(Sketcher.Constraint("Equal", 4, 6))
sketch4.addConstraint(Sketcher.Constraint("Equal", 3, 7))
sketch4.addConstraint(Sketcher.Constraint("Equal", 6, 8))
sketch4.addConstraint(Sketcher.Constraint("Equal", 5, 9))
sketch4.addConstraint(Sketcher.Constraint("Equal", 8, 10))
sketch4.addConstraint(Sketcher.Constraint("Equal", 7, 11))
sketch4.addConstraint(Sketcher.Constraint("Equal", 10, 12))
sketch4.addConstraint(Sketcher.Constraint("Equal", 9, 13))
sketch4.addConstraint(Sketcher.Constraint("Equal", 12, 14))
sketch4.addConstraint(Sketcher.Constraint("Equal", 11, 15))
sketch4.addConstraint(Sketcher.Constraint("Equal", 14, 16))
sketch4.addConstraint(Sketcher.Constraint("Equal", 13, 17))
sketch4.addConstraint(Sketcher.Constraint("Equal", 16, 18))
sketch4.addConstraint(Sketcher.Constraint("Equal", 15, 19))
sketch4.addConstraint(Sketcher.Constraint("Equal", 18, 20))
sketch4.addConstraint(Sketcher.Constraint("Equal", 17, 21))
sketch4.addConstraint(Sketcher.Constraint("Equal", 20, 22))
sketch4.addConstraint(Sketcher.Constraint("Equal", 19, 23))
sketch4.addConstraint(Sketcher.Constraint("Equal", 22, 24))
sketch4.addConstraint(Sketcher.Constraint("Equal", 21, 25))
sketch4.addConstraint(Sketcher.Constraint("Equal", 24, 26))
sketch4.addConstraint(Sketcher.Constraint("Equal", 23, 27))
sketch4.addConstraint(Sketcher.Constraint("Equal", 26, 28))
sketch4.addConstraint(Sketcher.Constraint("Equal", 25, 29))
sketch4.addConstraint(Sketcher.Constraint("Equal", 28, 30))
sketch4.addConstraint(Sketcher.Constraint("Equal", 27, 31))
sketch4.addConstraint(Sketcher.Constraint("Equal", 30, 32))
sketch4.addConstraint(Sketcher.Constraint("Equal", 29, 33))
sketch4.addConstraint(Sketcher.Constraint("Equal", 32, 34))
sketch4.addConstraint(Sketcher.Constraint("Equal", 31, 35))
sketch4.addConstraint(Sketcher.Constraint("Equal", 34, 36))
sketch4.addConstraint(Sketcher.Constraint("Equal", 33, 37))
sketch4.addConstraint(Sketcher.Constraint("Equal", 36, 38))
sketch4.addConstraint(Sketcher.Constraint("Equal", 35, 39))
sketch4.addConstraint(Sketcher.Constraint("Equal", 38, 40))
sketch4.addConstraint(Sketcher.Constraint("Equal", 37, 41))
sketch4.addConstraint(Sketcher.Constraint("Equal", 40, 42))
sketch4.addConstraint(Sketcher.Constraint("Equal", 39, 43))
sketch4.addConstraint(Sketcher.Constraint("Equal", 42, 44))
sketch4.addConstraint(Sketcher.Constraint("Equal", 41, 45))
sketch4.addConstraint(Sketcher.Constraint("Equal", 44, 46))
sketch4.addConstraint(Sketcher.Constraint("Equal", 43, 47))
sketch4.addConstraint(Sketcher.Constraint("Equal", 46, 48))
sketch4.addConstraint(Sketcher.Constraint("Equal", 45, 49))
sketch4.addConstraint(Sketcher.Constraint("Equal", 48, 50))
sketch4.addConstraint(Sketcher.Constraint("Equal", 47, 51))
sketch4.addConstraint(Sketcher.Constraint("Equal", 50, 52))
sketch4.addConstraint(Sketcher.Constraint("Equal", 49, 53))
sketch4.addConstraint(Sketcher.Constraint("Equal", 52, 54))
sketch4.addConstraint(Sketcher.Constraint("Equal", 51, 55))
sketch4.addConstraint(Sketcher.Constraint("Symmetric", 0, 3, 28, 3, -1, 1))
sketch4.addConstraint(Sketcher.Constraint("Symmetric", 2, 3, 30, 3, -1, 1))
sketch4.addConstraint(Sketcher.Constraint("Symmetric", 4, 3, 32, 3, -1, 1))
sketch4.addConstraint(Sketcher.Constraint("Symmetric", 6, 3, 34, 3, -1, 1))
sketch4.addConstraint(Sketcher.Constraint("Symmetric", 8, 3, 36, 3, -1, 1))
sketch4.addConstraint(Sketcher.Constraint("Symmetric", 10, 3, 38, 3, -1, 1))
sketch4.addConstraint(Sketcher.Constraint("Symmetric", 12, 3, 40, 3, -1, 1))
sketch4.addConstraint(Sketcher.Constraint("Symmetric", 14, 3, 42, 3, -1, 1))
sketch4.addConstraint(Sketcher.Constraint("Symmetric", 16, 3, 44, 3, -1, 1))
sketch4.addConstraint(Sketcher.Constraint("Symmetric", 18, 3, 46, 3, -1, 1))
sketch4.addConstraint(Sketcher.Constraint("Symmetric", 20, 3, 48, 3, -1, 1))
sketch4.addConstraint(Sketcher.Constraint("Symmetric", 22, 3, 50, 3, -1, 1))
sketch4.addConstraint(Sketcher.Constraint("Symmetric", 24, 3, 52, 3, -1, 1))
sketch4.addConstraint(Sketcher.Constraint("Symmetric", 26, 3, 54, 3, -1, 1))
sketch4.addConstraint(Sketcher.Constraint("Diameter", 56, Q("5 mm")))
sketch4.addConstraint(Sketcher.Constraint("Radius", 3, Q("8 mm")))
sketch4.addConstraint(Sketcher.Constraint("Radius", 0, Q("2.8 mm")))
sketch4.addConstraint(Sketcher.Constraint("Radius", 1, Q("5.749 mm")))
sketch4.addConstraint(Sketcher.Constraint("DistanceX", 16, 3, -1, 1, Q("3.756102 mm")))
sketch4.addConstraint(Sketcher.Constraint("DistanceY", -1, 1, 0, 2, Q("4.210299 mm")))
sketch4.addConstraint(Sketcher.Constraint("DistanceX", -1, 1, 6, 2, Q("0.0606 mm")))
sketch4.addConstraint(Sketcher.Constraint("DistanceY", -1, 1, 0, 3, Q("2.46032 mm")))
sketch4.addConstraint(Sketcher.Constraint("DistanceY", -1, 1, 2, 3, Q("6.528691 mm")))
sketch4.addConstraint(Sketcher.Constraint("DistanceX", -1, 1, 4, 3, Q("4.428781 mm")))
sketch4.addConstraint(Sketcher.Constraint("DistanceX", 6, 3, -1, 1, Q("2.10951 mm")))
sketch4.addConstraint(Sketcher.Constraint("DistanceY", -1, 1, 8, 3, Q("6.303471 mm")))
sketch4.addConstraint(Sketcher.Constraint("DistanceX", 14, 3, -1, 1, Q("6.186392 mm")))
sketch4.addConstraint(Sketcher.Constraint("DistanceY", -1, 1, 14, 3, Q("2.235318 mm")))
sketch4.addConstraint(Sketcher.Constraint("DistanceY", -1, 1, 16, 3, Q("5.399981 mm")))
sketch4.addConstraint(Sketcher.Constraint("DistanceY", 26, 3, -1, 1, Q("5.533881 mm")))
sketch4.addConstraint(Sketcher.Constraint("DistanceX", -1, 1, 2, 2, Q("3.525569 mm")))
sketch4.addConstraint(Sketcher.Constraint("DistanceX", -1, 1, 3, 2, Q("3.149231 mm")))
sketch4.addConstraint(Sketcher.Constraint("DistanceX", 7, 2, -1, 1, Q("0.353452 mm")))
sketch4.addConstraint(Sketcher.Constraint("DistanceX", 10, 2, -1, 1, Q("3.416371 mm")))
sketch4.addConstraint(Sketcher.Constraint("DistanceX", 11, 2, -1, 1, Q("3.78613 mm")))
sketch4.addConstraint(Sketcher.Constraint("DistanceX", 12, 2, -1, 1, Q("3.233649 mm")))
sketch4.addConstraint(Sketcher.Constraint("DistanceY", -1, 1, 17, 2, Q("1.897432 mm")))
sketch4.addConstraint(Sketcher.Constraint("DistanceY", -1, 1, 19, 2, Q("1.433839 mm")))
sketch4.addConstraint(Sketcher.Constraint("DistanceX", 20, 2, -1, 1, Q("5.732481 mm")))
sketch4.addConstraint(Sketcher.Constraint("DistanceY", 23, 2, -1, 1, Q("2.123019 mm")))
sketch4.addConstraint(Sketcher.Constraint("DistanceY", 24, 2, -1, 1, Q("2.094851 mm")))
sketch4.addConstraint(Sketcher.Constraint("DistanceX", 25, 2, -1, 1, Q("4.867061 mm")))
sketch4.addConstraint(Sketcher.Constraint("DistanceX", 10, 3, -1, 1, Q("4.603878 mm")))
sketch4.addConstraint(Sketcher.Constraint("DistanceX", 18, 3, -1, 1, Q("6.543615 mm")))
sketch4.addConstraint(Sketcher.Constraint("DistanceX", 22, 3, -1, 1, Q("5.604794 mm")))
sketch4.addConstraint(Sketcher.Constraint("DistanceY", 22, 3, -1, 1, Q("3.443017 mm")))
pad2 = body.newObject("PartDesign::Pad", "Pad001")
pad2.Profile = sketch4
pad2.Length = 5

doc.recompute()
